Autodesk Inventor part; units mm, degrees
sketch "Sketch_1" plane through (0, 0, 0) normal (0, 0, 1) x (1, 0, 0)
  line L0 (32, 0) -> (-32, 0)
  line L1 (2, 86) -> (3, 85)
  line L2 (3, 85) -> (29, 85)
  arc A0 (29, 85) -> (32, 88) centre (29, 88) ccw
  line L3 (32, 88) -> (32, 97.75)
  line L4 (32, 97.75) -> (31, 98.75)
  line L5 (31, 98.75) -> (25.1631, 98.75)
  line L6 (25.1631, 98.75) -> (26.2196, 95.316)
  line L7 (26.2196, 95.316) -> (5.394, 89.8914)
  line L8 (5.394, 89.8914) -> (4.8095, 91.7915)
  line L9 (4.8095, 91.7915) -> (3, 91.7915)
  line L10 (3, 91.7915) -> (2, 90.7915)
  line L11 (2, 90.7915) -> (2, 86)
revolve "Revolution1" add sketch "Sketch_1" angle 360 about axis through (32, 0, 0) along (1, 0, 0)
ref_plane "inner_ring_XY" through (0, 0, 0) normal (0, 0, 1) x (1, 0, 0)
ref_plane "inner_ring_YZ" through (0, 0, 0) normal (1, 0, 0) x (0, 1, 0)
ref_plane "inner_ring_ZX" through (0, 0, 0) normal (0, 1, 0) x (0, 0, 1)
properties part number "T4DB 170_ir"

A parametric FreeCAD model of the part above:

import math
import FreeCAD as App
import Part
import Sketcher

V = App.Vector
Q = App.Units.Quantity

doc = App.newDocument("Part")
body = doc.addObject("PartDesign::Body", "Body")

sketch1 = body.newObject("Sketcher::SketchObject", "Sketch")
sketch1.AttachmentSupport = (doc.getObject("XY_Plane"), [""])
sketch1.MapMode = "FlatFace"
sketch1.addGeometry([
    Part.LineSegment(V(2, 90.8, 0), V(2, 86, 0)),
    Part.LineSegment(V(2, 86, 0), V(3, 85, 0)),
    Part.LineSegment(V(3, 85, 0), V(29, 85, 0)),
    Part.ArcOfCircle(Part.Circle(V(29, 88, 0), V(0, 0, 1), 3), math.radians(-90), math.radians(0)),
    Part.LineSegment(V(32, 88, 0), V(32, 97.8, 0)),
    Part.LineSegment(V(32, 97.8, 0), V(31, 98.8, 0)),
    Part.LineSegment(V(31, 98.8, 0), V(25.2, 98.8, 0)),
    Part.LineSegment(V(25.2, 98.8, 0), V(26.2, 95.3, 0)),
    Part.LineSegment(V(26.2, 95.3, 0), V(5.4, 89.9, 0)),
    Part.LineSegment(V(5.4, 89.9, 0), V(4.8, 91.8, 0)),
    Part.LineSegment(V(4.8, 91.8, 0), V(3, 91.8, 0)),
    Part.LineSegment(V(3, 91.8, 0), V(2, 90.8, 0)),
], False)
sketch1.addConstraint([
    Sketcher.Constraint("Coincident", 0, 2, 1, 1),
    Sketcher.Constraint("Coincident", 1, 2, 2, 1),
    Sketcher.Constraint("Tangent", 2, 2, 3, 1),
    Sketcher.Constraint("Tangent", 3, 2, 4, 1),
    Sketcher.Constraint("Coincident", 4, 2, 5, 1),
    Sketcher.Constraint("Coincident", 5, 2, 6, 1),
    Sketcher.Constraint("Coincident", 6, 2, 7, 1),
    Sketcher.Constraint("Coincident", 7, 2, 8, 1),
    Sketcher.Constraint("Coincident", 8, 2, 9, 1),
    Sketcher.Constraint("Coincident", 9, 2, 10, 1),
    Sketcher.Constraint("Coincident", 10, 2, 11, 1),
    Sketcher.Constraint("Coincident", 11, 2, 0, 1),
    Sketcher.Constraint("Vertical", 0),
    Sketcher.Constraint("Horizontal", 2),
    Sketcher.Constraint("Vertical", 4),
    Sketcher.Constraint("Horizontal", 6),
    Sketcher.Constraint("Horizontal", 10),
    Sketcher.Constraint("Parallel", 1, 5),
    Sketcher.Constraint("Parallel", 7, 9),
    Sketcher.Constraint("Perpendicular", 5, 11),
    Sketcher.Constraint("Vertical", 1, 2, 10, 2),
    Sketcher.Constraint("Equal", 1, 5),
    Sketcher.Constraint("Equal", 5, 11),
    Sketcher.Constraint("Radius", 3, Q("3 mm")),
    Sketcher.Constraint("DistanceX", 2, 1, 2, 2, Q("26 mm")),
    Sketcher.Constraint("DistanceX", -1, 1, 3, 3, Q("29 mm")),
    Sketcher.Constraint("DistanceY", -1, 1, 3, 3, Q("88 mm")),
    Sketcher.Constraint("DistanceX", -1, 1, 0, 2, Q("2 mm")),
    Sketcher.Constraint("Angle", 7, Q("-72.899 deg")),
    Sketcher.Constraint("Angle", 8, Q("-165.4002 deg")),
    Sketcher.Constraint("DistanceY", 4, 1, 4, 2, Q("9.75 mm")),
    Sketcher.Constraint("DistanceY", 8, 2, 9, 2, Q("1.9 mm")),
    Sketcher.Constraint("DistanceX", 6, 2, 6, 1, Q("5.837 mm")),
    Sketcher.Constraint("DistanceX", 9, 2, 7, 2, Q("21.41 mm")),
    Sketcher.Constraint("DistanceX", 10, 2, 10, 1, Q("1.8095 mm")),
])
revolution = body.newObject("PartDesign::Revolution", "Revolution")
revolution.Profile = sketch1
revolution.ReferenceAxis = (sketch1, ["H_Axis"])
revolution.Angle = 360

doc.recompute()
